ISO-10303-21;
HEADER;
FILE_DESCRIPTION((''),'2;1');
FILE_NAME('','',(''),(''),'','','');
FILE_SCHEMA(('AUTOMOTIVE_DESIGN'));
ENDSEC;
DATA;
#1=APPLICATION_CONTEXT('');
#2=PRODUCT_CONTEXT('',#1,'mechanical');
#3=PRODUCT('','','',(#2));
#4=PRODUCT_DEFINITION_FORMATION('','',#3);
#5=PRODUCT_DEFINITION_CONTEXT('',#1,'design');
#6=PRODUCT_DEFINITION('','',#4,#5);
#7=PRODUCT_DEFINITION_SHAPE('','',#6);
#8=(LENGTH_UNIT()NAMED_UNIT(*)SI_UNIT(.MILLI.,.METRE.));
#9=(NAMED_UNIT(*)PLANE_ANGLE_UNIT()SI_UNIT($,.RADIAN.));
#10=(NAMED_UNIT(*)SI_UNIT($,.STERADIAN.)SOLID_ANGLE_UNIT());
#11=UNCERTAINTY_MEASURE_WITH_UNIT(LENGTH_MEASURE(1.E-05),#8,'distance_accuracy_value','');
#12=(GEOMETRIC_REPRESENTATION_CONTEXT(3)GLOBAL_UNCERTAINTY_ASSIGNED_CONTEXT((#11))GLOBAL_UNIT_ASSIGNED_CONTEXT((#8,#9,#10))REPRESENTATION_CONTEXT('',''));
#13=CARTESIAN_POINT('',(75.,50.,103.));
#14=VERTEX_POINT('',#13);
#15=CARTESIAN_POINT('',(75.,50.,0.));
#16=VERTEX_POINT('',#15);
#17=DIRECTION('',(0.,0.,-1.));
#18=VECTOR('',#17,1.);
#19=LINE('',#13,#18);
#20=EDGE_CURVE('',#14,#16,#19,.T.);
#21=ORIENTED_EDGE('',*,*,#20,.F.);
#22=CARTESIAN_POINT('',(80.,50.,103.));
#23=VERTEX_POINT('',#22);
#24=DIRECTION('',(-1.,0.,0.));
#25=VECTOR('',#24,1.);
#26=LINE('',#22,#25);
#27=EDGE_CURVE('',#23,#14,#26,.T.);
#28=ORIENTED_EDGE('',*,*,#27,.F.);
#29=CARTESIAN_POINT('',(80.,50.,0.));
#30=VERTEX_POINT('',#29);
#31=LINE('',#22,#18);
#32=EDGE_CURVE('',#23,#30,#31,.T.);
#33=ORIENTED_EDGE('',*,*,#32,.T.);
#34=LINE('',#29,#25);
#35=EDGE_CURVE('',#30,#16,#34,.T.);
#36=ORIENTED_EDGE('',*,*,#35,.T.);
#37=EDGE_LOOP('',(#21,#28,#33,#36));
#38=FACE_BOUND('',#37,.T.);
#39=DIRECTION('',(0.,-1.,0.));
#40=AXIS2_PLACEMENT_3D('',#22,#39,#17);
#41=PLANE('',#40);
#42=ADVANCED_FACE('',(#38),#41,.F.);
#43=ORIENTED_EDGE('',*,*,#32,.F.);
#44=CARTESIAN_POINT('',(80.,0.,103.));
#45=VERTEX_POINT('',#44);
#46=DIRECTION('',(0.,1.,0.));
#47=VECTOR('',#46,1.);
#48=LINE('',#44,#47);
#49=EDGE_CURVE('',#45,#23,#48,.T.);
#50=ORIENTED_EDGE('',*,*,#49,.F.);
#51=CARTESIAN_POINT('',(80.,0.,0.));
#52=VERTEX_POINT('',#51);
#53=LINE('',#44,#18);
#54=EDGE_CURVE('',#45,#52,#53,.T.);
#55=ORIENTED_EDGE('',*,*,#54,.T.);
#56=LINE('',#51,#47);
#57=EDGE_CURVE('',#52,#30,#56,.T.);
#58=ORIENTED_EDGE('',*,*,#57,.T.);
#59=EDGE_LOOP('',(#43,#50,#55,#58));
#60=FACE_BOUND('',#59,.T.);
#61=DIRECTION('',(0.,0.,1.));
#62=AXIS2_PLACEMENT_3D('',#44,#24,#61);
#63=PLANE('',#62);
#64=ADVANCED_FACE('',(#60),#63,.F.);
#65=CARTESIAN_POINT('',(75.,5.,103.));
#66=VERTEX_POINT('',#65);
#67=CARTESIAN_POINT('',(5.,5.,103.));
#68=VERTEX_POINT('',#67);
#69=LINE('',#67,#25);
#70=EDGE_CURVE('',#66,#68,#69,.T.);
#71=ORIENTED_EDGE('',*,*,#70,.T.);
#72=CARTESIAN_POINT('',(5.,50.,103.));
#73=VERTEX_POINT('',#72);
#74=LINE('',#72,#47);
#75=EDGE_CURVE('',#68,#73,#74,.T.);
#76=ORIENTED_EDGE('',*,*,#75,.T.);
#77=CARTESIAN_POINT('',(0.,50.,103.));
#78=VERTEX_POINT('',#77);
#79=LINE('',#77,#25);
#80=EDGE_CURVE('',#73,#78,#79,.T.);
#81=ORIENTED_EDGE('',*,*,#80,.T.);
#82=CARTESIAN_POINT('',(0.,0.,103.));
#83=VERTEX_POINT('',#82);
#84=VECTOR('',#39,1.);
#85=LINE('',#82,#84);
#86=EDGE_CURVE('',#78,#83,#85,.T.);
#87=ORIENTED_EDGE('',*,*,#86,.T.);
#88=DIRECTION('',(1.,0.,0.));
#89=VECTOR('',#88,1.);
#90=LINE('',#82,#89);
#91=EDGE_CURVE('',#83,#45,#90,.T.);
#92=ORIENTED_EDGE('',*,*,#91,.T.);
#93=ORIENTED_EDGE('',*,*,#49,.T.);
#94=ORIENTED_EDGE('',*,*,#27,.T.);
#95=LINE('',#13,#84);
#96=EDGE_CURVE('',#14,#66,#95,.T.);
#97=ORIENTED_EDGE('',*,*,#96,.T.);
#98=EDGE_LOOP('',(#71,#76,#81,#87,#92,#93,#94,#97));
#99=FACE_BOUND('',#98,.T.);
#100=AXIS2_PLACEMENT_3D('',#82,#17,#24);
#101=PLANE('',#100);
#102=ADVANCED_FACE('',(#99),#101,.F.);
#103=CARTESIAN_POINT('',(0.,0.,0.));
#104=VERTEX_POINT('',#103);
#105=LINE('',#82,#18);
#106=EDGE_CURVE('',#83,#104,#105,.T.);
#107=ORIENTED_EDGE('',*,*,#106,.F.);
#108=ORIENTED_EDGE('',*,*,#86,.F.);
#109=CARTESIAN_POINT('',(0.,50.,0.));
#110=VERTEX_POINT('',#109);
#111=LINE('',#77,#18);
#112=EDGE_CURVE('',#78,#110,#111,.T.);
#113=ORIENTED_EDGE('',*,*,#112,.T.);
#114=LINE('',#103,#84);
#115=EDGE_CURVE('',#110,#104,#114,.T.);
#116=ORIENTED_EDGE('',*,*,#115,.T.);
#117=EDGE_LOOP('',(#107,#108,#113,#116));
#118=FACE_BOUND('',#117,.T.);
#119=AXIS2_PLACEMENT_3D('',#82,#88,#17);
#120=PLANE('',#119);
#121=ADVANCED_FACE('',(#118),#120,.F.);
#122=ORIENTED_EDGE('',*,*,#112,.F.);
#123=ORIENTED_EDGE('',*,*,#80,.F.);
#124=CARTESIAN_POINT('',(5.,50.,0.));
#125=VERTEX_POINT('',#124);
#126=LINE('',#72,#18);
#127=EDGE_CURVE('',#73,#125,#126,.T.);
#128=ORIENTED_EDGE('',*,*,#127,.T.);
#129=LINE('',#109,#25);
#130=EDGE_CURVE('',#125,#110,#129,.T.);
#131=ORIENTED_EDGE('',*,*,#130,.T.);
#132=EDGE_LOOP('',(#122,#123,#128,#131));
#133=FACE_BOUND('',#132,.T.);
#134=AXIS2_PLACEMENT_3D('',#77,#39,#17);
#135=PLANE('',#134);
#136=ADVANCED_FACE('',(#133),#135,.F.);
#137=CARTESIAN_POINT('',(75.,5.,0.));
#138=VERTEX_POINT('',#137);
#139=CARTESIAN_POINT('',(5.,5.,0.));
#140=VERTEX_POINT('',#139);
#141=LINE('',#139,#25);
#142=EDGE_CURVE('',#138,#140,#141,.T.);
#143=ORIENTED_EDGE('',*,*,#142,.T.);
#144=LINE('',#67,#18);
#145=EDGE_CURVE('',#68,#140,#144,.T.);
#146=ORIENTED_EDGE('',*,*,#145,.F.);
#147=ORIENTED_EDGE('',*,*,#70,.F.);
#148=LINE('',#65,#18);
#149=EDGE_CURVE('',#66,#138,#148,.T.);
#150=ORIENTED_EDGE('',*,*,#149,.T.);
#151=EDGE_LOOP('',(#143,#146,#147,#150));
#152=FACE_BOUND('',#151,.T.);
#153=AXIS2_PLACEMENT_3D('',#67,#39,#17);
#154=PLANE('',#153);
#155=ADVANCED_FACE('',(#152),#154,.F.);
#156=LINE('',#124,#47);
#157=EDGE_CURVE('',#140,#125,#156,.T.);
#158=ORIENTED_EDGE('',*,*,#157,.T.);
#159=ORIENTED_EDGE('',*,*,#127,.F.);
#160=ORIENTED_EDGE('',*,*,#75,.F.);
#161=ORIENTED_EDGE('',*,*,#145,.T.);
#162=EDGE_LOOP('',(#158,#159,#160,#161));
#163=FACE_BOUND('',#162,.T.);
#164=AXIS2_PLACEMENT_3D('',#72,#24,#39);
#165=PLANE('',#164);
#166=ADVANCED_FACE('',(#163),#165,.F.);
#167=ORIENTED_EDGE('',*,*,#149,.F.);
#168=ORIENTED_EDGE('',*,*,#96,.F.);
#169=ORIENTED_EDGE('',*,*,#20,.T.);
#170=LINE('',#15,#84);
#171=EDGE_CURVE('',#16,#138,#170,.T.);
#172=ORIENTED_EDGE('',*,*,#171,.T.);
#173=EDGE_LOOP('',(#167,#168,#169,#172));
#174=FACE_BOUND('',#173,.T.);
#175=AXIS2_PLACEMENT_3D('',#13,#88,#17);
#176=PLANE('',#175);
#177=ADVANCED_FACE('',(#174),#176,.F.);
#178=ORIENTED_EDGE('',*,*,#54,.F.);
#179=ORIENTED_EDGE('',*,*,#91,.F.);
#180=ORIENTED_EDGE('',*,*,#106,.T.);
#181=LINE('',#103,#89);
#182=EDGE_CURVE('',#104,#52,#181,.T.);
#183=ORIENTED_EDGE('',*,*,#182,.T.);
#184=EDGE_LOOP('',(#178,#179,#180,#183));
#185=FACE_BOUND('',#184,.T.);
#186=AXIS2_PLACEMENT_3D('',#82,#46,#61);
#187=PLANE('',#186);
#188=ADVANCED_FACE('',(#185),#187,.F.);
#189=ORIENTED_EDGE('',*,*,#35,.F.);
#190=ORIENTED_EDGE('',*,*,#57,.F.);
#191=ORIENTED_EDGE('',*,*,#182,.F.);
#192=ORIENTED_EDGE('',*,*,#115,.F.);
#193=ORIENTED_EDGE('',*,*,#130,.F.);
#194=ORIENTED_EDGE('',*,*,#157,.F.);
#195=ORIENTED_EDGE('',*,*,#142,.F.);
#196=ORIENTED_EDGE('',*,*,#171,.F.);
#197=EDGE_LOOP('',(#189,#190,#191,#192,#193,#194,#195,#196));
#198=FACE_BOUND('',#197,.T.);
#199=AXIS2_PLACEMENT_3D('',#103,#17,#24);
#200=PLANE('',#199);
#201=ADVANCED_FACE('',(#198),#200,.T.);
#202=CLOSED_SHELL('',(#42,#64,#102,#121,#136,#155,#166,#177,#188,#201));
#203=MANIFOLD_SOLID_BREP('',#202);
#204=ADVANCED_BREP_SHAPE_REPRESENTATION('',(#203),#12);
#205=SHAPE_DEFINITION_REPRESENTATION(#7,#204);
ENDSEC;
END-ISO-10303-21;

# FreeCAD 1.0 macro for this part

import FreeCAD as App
import Part
import Sketcher
from FreeCAD import Vector
Q = App.Units.Quantity


def add_polygon(sketch, points):
    """Adds a closed chain of lines whose ends are joined by coincident constraints."""
    first, n = sketch.GeometryCount, len(points)
    for a, b in zip(points, points[1:] + points[:1]):
        sketch.addGeometry(Part.LineSegment(App.Vector(*a, 0), App.Vector(*b, 0)), False)
    for i in range(n):
        sketch.addConstraint(Sketcher.Constraint("Coincident", first + i, 2, first + (i + 1) % n, 1))

doc = App.newDocument("Part")
body = doc.addObject("PartDesign::Body", "Body")

sketch1 = doc.addObject("Sketcher::SketchObject", "Sketch")
body.addObject(sketch1)
sketch1.AttachmentSupport = (doc.XY_Plane, [""])
sketch1.MapMode = "FlatFace"
add_polygon(sketch1, [(0, 0), (80, 0), (80, 50), (75, 50), (75, 5), (5, 5), (5, 50), (0, 50)])
sketch1.addConstraint([
    Sketcher.Constraint("Horizontal", 0),
    Sketcher.Constraint("Vertical", 1),
    Sketcher.Constraint("Horizontal", 2),
    Sketcher.Constraint("Vertical", 3),
    Sketcher.Constraint("Horizontal", 4),
    Sketcher.Constraint("Vertical", 5),
    Sketcher.Constraint("Horizontal", 6),
    Sketcher.Constraint("Vertical", 7),
    Sketcher.Constraint("Coincident", 7, 2, -1, 1),
    Sketcher.Constraint("Horizontal", 2, 2, 5, 2),
    Sketcher.Constraint("Equal", 2, 6),
    Sketcher.Constraint("DistanceX", 0, 1, 0, 2, Q("80 mm")),
    Sketcher.Constraint("DistanceX", 2, 2, 2, 1, Q("5 mm")),
    Sketcher.Constraint("DistanceY", 1, 1, 1, 2, Q("50 mm")),
    Sketcher.Constraint("DistanceY", 3, 2, 3, 1, Q("45 mm")),
])
pad1 = doc.addObject("PartDesign::Pad", "Pad")
body.addObject(pad1)
pad1.Profile = sketch1
pad1.Length = 103

doc.recompute()
